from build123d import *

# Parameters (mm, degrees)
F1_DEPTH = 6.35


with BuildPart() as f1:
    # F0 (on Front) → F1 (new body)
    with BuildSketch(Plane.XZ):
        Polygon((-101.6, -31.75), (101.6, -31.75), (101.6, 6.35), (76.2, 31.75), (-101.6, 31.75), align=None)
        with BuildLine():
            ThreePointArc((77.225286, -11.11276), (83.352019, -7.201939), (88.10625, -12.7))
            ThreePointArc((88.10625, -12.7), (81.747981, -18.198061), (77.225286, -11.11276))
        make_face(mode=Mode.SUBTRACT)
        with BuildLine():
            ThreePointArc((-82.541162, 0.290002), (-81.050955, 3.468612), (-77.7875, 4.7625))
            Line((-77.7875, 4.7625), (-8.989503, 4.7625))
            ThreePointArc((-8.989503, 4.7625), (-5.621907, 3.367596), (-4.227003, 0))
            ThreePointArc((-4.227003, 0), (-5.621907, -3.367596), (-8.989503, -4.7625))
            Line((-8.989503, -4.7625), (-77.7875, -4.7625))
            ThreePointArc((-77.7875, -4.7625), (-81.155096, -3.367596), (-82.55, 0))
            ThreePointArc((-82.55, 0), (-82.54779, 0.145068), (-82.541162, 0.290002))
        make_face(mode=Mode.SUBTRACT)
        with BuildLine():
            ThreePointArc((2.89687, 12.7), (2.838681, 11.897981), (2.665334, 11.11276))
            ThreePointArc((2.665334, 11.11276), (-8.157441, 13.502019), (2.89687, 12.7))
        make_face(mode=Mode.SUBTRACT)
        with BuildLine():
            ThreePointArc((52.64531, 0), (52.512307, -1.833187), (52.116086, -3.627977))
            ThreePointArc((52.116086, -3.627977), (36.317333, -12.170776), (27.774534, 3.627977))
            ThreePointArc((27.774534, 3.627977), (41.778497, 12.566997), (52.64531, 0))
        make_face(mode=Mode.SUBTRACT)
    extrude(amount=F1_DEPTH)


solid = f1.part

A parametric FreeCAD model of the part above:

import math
import FreeCAD as App
import Part
import Sketcher

V = App.Vector
Q = App.Units.Quantity

doc = App.newDocument("Part")
body = doc.addObject("PartDesign::Body", "Body")

# Sketch on XZ plane
sketch1 = doc.addObject("Sketcher::SketchObject", "Sketch")
body.addObject(sketch1)
sketch1.AttachmentSupport = (doc.XZ_Plane, [""])
sketch1.MapMode = "FlatFace"
sketch1.addGeometry([
    Part.LineSegment(V(-101.6, -31.75, 0), V(101.6, -31.75, 0)),  # 0
    Part.LineSegment(V(101.6, -31.75, 0), V(101.6, 6.35, 0)),  # 1
    Part.LineSegment(V(101.6, 6.35, 0), V(76.2, 31.75, 0)),  # 2
    Part.LineSegment(V(76.2, 31.75, 0), V(-101.6, 31.75, 0)),  # 3
    Part.LineSegment(V(-101.6, 31.75, 0), V(-101.6, -31.75, 0)),  # 4
    Part.ArcOfCircle(Part.Circle(V(-77.787658, 0, 0), V(0, 0, 1), 4.762342), math.radians(176.508826), math.radians(180.000002)),  # 5
    Part.ArcOfCircle(Part.Circle(V(-77.787501, 0.000001, 0), V(0, 0, 1), 4.762499), math.radians(89.999993), math.radians(176.50895)),  # 6
    Part.LineSegment(V(-77.7875, 4.7625, 0), V(-8.989503, 4.7625, 0)),  # 7
    Part.ArcOfCircle(Part.Circle(V(-8.989503, 0, 0), V(0, 0, 1), 4.7625), math.radians(0.000002), math.radians(89.999998)),  # 8
    Part.ArcOfCircle(Part.Circle(V(-8.989503, 0, 0), V(0, 0, 1), 4.7625), math.radians(-89.999998), math.radians(-0.000002)),  # 9
    Part.LineSegment(V(-8.989503, -4.7625, 0), V(-77.7875, -4.7625, 0)),  # 10
    Part.ArcOfCircle(Part.Circle(V(-77.7875, 0, 0), V(0, 0, 1), 4.7625), math.radians(-179.999998), math.radians(-90.000002)),  # 11
    Part.ArcOfCircle(Part.Circle(V(82.55, -12.7, 0), V(0, 0, 1), 5.55625), math.radians(163.40125), math.radians(359.999998)),  # 12
    Part.ArcOfCircle(Part.Circle(V(82.55, -12.7, 0), V(0, 0, 1), 5.55625), math.radians(0.000003), math.radians(163.401244)),  # 13
    Part.ArcOfCircle(Part.Circle(V(39.94531, -0.000001, 0), V(0, 0, 1), 12.7), math.radians(0.000003), math.radians(163.401246)),  # 14
    Part.ArcOfCircle(Part.Circle(V(39.945256, 0.000007, 0), V(0, 0, 1), 12.700054), math.radians(-16.598712), math.radians(-0.000032)),  # 15
    Part.ArcOfCircle(Part.Circle(V(39.94531, 0, 0), V(0, 0, 1), 12.7), math.radians(163.401249), math.radians(343.401249)),  # 16
    Part.ArcOfCircle(Part.Circle(V(-2.65938, 12.700001, 0), V(0, 0, 1), 5.55625), math.radians(-0.000013), math.radians(343.401234)),  # 17
    Part.ArcOfCircle(Part.Circle(V(-2.659404, 12.700005, 0), V(0, 0, 1), 5.556274), math.radians(-16.59873), math.radians(-0.000049)),  # 18
], False)
sketch1.addConstraint([
    Sketcher.Constraint("Coincident", 0, 2, 1, 1),
    Sketcher.Constraint("Coincident", 1, 2, 2, 1),
    Sketcher.Constraint("Coincident", 2, 2, 3, 1),
    Sketcher.Constraint("Coincident", 3, 2, 4, 1),
    Sketcher.Constraint("Coincident", 4, 2, 0, 1),
    Sketcher.Constraint("Coincident", 5, 1, 6, 2),
    Sketcher.Constraint("Coincident", 6, 1, 7, 1),
    Sketcher.Constraint("Coincident", 7, 2, 8, 2),
    Sketcher.Constraint("Coincident", 8, 1, 9, 2),
    Sketcher.Constraint("Coincident", 9, 1, 10, 1),
    Sketcher.Constraint("Coincident", 10, 2, 11, 2),
    Sketcher.Constraint("Coincident", 11, 1, 5, 2),
    Sketcher.Constraint("Coincident", 12, 1, 13, 2),
    Sketcher.Constraint("Coincident", 13, 1, 12, 2),
    Sketcher.Constraint("Coincident", 14, 1, 15, 2),
    Sketcher.Constraint("Coincident", 15, 1, 16, 2),
    Sketcher.Constraint("Coincident", 16, 1, 14, 2),
    Sketcher.Constraint("Coincident", 17, 1, 18, 2),
    Sketcher.Constraint("Coincident", 18, 1, 17, 2),
    Sketcher.Constraint("Horizontal", 0),
    Sketcher.Constraint("Vertical", 1),
    Sketcher.Constraint("Horizontal", 3),
    Sketcher.Constraint("Vertical", 4),
    Sketcher.Constraint("Horizontal", 7),
    Sketcher.Constraint("Horizontal", 10),
    Sketcher.Constraint("Coincident", 9, 3, 8, 3),
    Sketcher.Constraint("Coincident", 11, 3, 6, 3),
    Sketcher.Constraint("Coincident", 16, 3, 14, 3),
    Sketcher.Constraint("PointOnObject", 5, 3, -1),
    Sketcher.Constraint("PointOnObject", 6, 3, -1),
    Sketcher.Constraint("PointOnObject", 14, 3, -1),
    Sketcher.Constraint("PointOnObject", 8, 1, -1),
    Sketcher.Constraint("PointOnObject", 11, 1, -1),
    Sketcher.Constraint("PointOnObject", 14, 1, -1),
    Sketcher.Constraint("Radius", 14, Q("0.5 in")),
    Sketcher.Constraint("DistanceX", 0, 1, 0, 2, Q("8 in")),
    Sketcher.Constraint("DistanceX", 3, 2, 3, 1, Q("7 in")),
    Sketcher.Constraint("DistanceY", 1, 1, 1, 2, Q("1.5 in")),
    Sketcher.Constraint("DistanceY", 4, 2, 4, 1, Q("2.5 in")),
    Sketcher.Constraint("DistanceX", -1, 1, 0, 2, Q("4 in")),
    Sketcher.Constraint("Radius", 6, Q("0.1875 in")),
    Sketcher.Constraint("Radius", 12, Q("0.21875 in")),
    Sketcher.Constraint("Radius", 13, Q("0.21875 in")),
    Sketcher.Constraint("Radius", 17, Q("0.21875 in")),
    Sketcher.Constraint("DistanceY", 12, 3, -1, 1, Q("0.5 in")),
    Sketcher.Constraint("DistanceY", -1, 1, 17, 3, Q("0.5 in")),
    Sketcher.Constraint("DistanceY", -1, 1, 18, 3, Q("0.5000002 in")),
    Sketcher.Constraint("DistanceY", 13, 1, -1, 1, Q("0.5 in")),
    Sketcher.Constraint("DistanceY", -1, 1, 17, 1, Q("0.5 in")),
    Sketcher.Constraint("DistanceY", 15, 3, 18, 3, Q("0.4999999 in")),
    Sketcher.Constraint("DistanceX", -1, 1, 12, 3, Q("3.25 in")),
    Sketcher.Constraint("DistanceY", 0, 2, -1, 1, Q("1.25 in")),
    Sketcher.Constraint("DistanceX", 11, 1, -1, 1, Q("3.25 in")),
    Sketcher.Constraint("DistanceX", 6, 1, -1, 1, Q("3.0625 in")),
    Sketcher.Constraint("DistanceX", 10, 2, -1, 1, Q("3.0625 in")),
    Sketcher.Constraint("Radius", 5, Q("4.762342 mm")),
    Sketcher.Constraint("DistanceX", 7, 2, 8, 1, Q("0.1875 in")),
    Sketcher.Constraint("DistanceX", 9, 1, 8, 1, Q("0.1875 in")),
    Sketcher.Constraint("DistanceX", 17, 3, -1, 1, Q("0.1047 in")),
    Sketcher.Constraint("DistanceX", 9, 3, 18, 3, Q("6.3301 mm")),
    Sketcher.Constraint("DistanceY", 5, 3, 5, 1, Q("0.290002 mm")),
    Sketcher.Constraint("DistanceX", 15, 1, 12, 1, Q("25.1092 mm")),
    Sketcher.Constraint("DistanceX", -1, 1, 14, 3, Q("39.94531 mm")),
    Sketcher.Constraint("DistanceY", 12, 1, -1, 1, Q("11.11276 mm")),
    Sketcher.Constraint("DistanceY", -1, 1, 18, 1, Q("11.11276 mm")),
    Sketcher.Constraint("DistanceX", 16, 1, 15, 3, Q("12.170722 mm")),
])
pad1 = doc.addObject("PartDesign::Pad", "Pad")
body.addObject(pad1)
pad1.Profile = sketch1
pad1.Length = Q("0.25 in")

doc.recompute()
